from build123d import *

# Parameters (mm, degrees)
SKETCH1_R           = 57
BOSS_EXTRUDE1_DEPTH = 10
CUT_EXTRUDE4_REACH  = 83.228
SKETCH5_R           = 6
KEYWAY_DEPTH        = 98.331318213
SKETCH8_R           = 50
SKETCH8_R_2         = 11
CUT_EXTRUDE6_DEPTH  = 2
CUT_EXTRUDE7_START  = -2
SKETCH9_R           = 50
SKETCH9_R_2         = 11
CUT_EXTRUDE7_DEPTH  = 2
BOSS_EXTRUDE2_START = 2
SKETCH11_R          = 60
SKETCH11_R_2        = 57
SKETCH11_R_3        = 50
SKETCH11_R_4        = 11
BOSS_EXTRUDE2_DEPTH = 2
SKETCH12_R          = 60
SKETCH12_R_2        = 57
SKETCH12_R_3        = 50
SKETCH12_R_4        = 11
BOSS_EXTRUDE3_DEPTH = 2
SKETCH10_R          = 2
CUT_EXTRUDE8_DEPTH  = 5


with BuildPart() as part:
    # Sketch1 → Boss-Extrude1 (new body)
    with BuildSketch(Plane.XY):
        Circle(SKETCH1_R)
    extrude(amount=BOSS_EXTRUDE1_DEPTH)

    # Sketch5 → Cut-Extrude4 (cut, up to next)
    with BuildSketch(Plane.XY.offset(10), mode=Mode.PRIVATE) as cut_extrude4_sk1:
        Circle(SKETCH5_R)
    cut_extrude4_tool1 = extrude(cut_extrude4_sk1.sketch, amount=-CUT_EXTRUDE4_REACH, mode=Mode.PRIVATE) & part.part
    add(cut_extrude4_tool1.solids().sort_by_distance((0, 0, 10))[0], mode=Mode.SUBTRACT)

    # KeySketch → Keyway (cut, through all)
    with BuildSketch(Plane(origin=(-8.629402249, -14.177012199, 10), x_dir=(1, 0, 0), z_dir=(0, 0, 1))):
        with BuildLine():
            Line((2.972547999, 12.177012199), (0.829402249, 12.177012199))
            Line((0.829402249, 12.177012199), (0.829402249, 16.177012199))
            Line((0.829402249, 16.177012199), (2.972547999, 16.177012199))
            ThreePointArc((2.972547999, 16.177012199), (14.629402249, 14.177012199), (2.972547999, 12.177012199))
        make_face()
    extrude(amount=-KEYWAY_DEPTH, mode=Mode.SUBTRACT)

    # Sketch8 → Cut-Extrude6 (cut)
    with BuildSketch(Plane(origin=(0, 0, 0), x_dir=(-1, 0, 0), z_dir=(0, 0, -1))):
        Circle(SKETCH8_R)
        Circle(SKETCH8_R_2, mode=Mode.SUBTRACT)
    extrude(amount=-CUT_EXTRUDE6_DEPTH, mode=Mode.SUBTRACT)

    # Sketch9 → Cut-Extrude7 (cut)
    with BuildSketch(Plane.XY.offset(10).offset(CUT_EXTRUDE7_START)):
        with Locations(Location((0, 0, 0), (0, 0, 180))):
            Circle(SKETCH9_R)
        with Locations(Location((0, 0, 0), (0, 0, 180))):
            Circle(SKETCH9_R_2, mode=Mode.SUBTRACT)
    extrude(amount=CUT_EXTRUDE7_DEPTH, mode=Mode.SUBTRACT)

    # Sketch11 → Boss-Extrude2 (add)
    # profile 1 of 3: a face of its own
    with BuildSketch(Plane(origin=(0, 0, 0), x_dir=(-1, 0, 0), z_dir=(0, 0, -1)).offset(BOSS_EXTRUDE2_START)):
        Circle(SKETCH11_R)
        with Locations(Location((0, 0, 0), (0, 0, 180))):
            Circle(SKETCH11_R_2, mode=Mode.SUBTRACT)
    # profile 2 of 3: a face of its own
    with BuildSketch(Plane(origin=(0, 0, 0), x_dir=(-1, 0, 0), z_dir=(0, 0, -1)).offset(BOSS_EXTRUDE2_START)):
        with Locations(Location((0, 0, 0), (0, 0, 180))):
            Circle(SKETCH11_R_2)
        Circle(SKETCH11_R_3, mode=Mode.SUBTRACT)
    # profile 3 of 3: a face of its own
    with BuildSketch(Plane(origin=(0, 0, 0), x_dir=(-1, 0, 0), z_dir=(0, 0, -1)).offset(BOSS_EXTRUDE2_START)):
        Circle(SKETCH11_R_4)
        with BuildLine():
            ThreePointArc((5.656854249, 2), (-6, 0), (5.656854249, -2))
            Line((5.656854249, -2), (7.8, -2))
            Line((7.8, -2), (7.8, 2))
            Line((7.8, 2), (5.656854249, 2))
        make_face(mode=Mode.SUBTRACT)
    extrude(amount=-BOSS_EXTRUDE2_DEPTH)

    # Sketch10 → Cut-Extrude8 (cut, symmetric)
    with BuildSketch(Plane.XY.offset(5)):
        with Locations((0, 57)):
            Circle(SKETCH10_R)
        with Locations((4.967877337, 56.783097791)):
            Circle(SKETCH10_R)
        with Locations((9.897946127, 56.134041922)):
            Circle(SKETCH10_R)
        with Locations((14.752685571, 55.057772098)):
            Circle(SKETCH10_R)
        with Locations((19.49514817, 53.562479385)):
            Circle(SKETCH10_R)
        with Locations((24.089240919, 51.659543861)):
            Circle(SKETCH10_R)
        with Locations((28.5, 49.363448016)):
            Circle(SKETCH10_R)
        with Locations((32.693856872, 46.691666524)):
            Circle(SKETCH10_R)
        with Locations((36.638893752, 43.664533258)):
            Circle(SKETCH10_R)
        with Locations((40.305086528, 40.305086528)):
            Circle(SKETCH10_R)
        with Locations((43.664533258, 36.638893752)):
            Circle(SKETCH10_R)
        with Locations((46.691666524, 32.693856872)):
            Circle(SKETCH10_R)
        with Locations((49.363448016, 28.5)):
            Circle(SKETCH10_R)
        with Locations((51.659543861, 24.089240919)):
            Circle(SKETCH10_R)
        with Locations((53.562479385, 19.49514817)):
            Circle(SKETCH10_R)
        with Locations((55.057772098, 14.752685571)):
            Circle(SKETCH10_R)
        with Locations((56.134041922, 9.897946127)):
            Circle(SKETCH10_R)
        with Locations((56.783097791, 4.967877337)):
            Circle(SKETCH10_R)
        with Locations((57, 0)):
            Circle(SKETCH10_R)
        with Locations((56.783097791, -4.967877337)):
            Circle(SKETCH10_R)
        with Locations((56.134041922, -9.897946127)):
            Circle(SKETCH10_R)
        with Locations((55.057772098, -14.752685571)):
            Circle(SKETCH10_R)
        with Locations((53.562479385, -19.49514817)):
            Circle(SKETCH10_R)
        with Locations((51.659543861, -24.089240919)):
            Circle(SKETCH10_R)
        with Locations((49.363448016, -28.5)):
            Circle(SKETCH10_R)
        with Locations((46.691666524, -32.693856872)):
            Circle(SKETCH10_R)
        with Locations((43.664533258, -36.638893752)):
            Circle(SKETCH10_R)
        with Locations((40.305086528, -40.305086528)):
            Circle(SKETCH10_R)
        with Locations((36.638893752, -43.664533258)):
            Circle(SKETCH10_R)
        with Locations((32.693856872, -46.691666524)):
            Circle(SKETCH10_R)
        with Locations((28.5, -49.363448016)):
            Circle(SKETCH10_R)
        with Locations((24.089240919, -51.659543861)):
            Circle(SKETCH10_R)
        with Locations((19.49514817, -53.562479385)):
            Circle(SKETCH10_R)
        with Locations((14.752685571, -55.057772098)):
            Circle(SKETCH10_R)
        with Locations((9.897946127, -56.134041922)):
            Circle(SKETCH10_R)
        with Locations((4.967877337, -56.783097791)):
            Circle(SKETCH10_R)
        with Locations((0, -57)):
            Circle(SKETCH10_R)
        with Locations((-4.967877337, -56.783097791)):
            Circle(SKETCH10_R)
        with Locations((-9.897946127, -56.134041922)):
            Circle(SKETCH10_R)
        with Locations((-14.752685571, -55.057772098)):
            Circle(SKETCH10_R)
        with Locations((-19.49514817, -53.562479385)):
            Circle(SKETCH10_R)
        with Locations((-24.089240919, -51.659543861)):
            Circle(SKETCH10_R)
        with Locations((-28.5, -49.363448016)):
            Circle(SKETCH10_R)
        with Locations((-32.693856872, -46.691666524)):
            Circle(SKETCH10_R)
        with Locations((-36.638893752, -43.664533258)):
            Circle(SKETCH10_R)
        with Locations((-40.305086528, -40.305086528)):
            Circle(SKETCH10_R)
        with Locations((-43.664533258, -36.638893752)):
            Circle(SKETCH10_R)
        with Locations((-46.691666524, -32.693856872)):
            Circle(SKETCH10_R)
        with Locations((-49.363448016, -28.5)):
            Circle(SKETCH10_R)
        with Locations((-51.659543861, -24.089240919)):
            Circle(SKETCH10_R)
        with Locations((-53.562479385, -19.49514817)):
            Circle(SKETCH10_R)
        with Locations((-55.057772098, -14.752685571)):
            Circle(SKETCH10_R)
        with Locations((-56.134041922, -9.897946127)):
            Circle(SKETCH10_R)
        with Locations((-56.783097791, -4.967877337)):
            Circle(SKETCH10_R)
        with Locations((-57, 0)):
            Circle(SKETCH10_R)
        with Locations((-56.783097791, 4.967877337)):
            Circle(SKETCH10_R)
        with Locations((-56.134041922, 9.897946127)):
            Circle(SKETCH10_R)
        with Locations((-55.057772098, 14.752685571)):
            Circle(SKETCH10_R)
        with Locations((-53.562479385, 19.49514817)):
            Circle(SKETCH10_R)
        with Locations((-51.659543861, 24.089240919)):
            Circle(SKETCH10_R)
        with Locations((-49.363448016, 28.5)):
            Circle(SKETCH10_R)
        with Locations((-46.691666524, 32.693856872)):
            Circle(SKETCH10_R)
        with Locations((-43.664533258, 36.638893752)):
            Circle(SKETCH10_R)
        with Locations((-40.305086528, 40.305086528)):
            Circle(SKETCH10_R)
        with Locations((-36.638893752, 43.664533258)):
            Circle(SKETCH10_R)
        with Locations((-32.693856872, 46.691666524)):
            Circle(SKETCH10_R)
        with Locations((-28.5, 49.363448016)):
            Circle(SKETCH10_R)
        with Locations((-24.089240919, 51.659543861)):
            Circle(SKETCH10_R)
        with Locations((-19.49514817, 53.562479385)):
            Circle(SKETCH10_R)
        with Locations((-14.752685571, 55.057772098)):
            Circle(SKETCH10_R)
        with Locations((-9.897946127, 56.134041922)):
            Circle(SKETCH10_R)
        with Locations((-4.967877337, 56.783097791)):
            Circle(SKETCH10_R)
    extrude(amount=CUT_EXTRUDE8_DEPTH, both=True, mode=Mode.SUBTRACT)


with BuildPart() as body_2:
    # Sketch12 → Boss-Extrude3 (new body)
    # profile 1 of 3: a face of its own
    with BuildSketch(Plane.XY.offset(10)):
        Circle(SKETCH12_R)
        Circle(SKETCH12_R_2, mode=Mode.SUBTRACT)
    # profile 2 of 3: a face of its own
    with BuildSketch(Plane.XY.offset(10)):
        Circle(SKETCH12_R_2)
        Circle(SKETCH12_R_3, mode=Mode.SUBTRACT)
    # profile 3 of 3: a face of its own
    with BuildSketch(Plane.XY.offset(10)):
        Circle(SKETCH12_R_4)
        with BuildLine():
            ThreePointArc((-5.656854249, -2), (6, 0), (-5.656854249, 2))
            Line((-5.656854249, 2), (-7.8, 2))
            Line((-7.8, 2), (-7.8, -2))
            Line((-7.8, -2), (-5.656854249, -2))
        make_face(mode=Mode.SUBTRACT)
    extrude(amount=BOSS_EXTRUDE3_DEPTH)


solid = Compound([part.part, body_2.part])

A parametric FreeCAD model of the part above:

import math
import FreeCAD as App
import Part
import Sketcher

V = App.Vector

doc = App.newDocument("Part")
body = doc.addObject("PartDesign::Body", "Body")

sketch1 = body.newObject("Sketcher::SketchObject", "Sketch")
sketch1.AttachmentSupport = (doc.getObject("XY_Plane"), [""])
sketch1.MapMode = "FlatFace"
sketch1.addGeometry(Part.Circle(V(0, 0, 0), V(0, 0, 1), 57), False)
sketch1.addConstraint(Sketcher.Constraint("Coincident", 0, 3, -1, 1))
sketch1.addConstraint(Sketcher.Constraint("Diameter", 0, 114.0))
pad1 = body.newObject("PartDesign::Pad", "Pad")
pad1.Profile = sketch1
pad1.Length = 10

sketch2 = body.newObject("Sketcher::SketchObject", "Sketch001")
sketch2.AttachmentSupport = (doc.getObject("XY_Plane"), [""])
sketch2.MapMode = "FlatFace"
sketch2.AttachmentOffset = App.Placement(V(0, 0, 10), App.Rotation())
sketch2.addGeometry(Part.Circle(V(0, 0, 0), V(0, 0, 1), 6), False)
sketch2.addConstraint(Sketcher.Constraint("Coincident", 0, 3, -1, 1))
sketch2.addConstraint(Sketcher.Constraint("Diameter", 0, 12.0))
pocket1 = body.newObject("PartDesign::Pocket", "Pocket")
pocket1.Profile = sketch2
pocket1.Type = "UpToFirst"

sketch3 = body.newObject("Sketcher::SketchObject", "Sketch002")
sketch3.AttachmentSupport = (doc.getObject("XY_Plane"), [""])
sketch3.MapMode = "FlatFace"
sketch3.AttachmentOffset = App.Placement(V(0, 0, 10), App.Rotation())
sketch3.addGeometry(Part.LineSegment(V(-7.8, -2, 0), V(-5.656854, -2, 0)), False)
sketch3.addGeometry(Part.ArcOfCircle(Part.Circle(V(0, 0, 0), V(0, 0, 1), 6), math.radians(-160.528779), math.radians(160.528779)), False)
sketch3.addGeometry(Part.LineSegment(V(-5.656854, 2, 0), V(-7.8, 2, 0)), False)
sketch3.addGeometry(Part.LineSegment(V(-7.8, 2, 0), V(-7.8, -2, 0)), False)
sketch3.addConstraint(Sketcher.Constraint("Coincident", 0, 2, 1, 1))
sketch3.addConstraint(Sketcher.Constraint("Coincident", 1, 2, 2, 1))
sketch3.addConstraint(Sketcher.Constraint("Coincident", 2, 2, 3, 1))
sketch3.addConstraint(Sketcher.Constraint("Coincident", 3, 2, 0, 1))
sketch3.addConstraint(Sketcher.Constraint("Horizontal", 0))
sketch3.addConstraint(Sketcher.Constraint("Horizontal", 2))
sketch3.addConstraint(Sketcher.Constraint("Vertical", 3))
sketch3.addConstraint(Sketcher.Constraint("Coincident", 1, 3, -1, 1))
sketch3.addConstraint(Sketcher.Constraint("Vertical", 0, 2, 1, 2))
sketch3.addConstraint(Sketcher.Constraint("Radius", 1, 6.0))
sketch3.addConstraint(Sketcher.Constraint("DistanceY", 3, 2, 3, 1, 4.0))
sketch3.addConstraint(Sketcher.Constraint("DistanceX", 2, 2, -1, 1, 7.8))
pocket2 = body.newObject("PartDesign::Pocket", "Pocket001")
pocket2.Profile = sketch3
pocket2.Type = "ThroughAll"

sketch4 = body.newObject("Sketcher::SketchObject", "Sketch003")
sketch4.AttachmentSupport = (doc.getObject("XY_Plane"), [""])
sketch4.MapMode = "FlatFace"
sketch4.addGeometry(Part.Circle(V(0, 0, 0), V(0, 0, 1), 50), False)
sketch4.addGeometry(Part.Circle(V(0, 0, 0), V(0, 0, 1), 11), False)
sketch4.addConstraint(Sketcher.Constraint("Coincident", 0, 3, -1, 1))
sketch4.addConstraint(Sketcher.Constraint("Coincident", 1, 3, -1, 1))
sketch4.addConstraint(Sketcher.Constraint("Diameter", 0, 100.0))
sketch4.addConstraint(Sketcher.Constraint("Diameter", 1, 22.0))
pocket3 = body.newObject("PartDesign::Pocket", "Pocket002")
pocket3.Profile = sketch4
pocket3.Length = 2
pocket3.Reversed = True

sketch5 = body.newObject("Sketcher::SketchObject", "Sketch004")
sketch5.AttachmentSupport = (doc.getObject("XY_Plane"), [""])
sketch5.MapMode = "FlatFace"
sketch5.AttachmentOffset = App.Placement(V(0, 0, 8), App.Rotation())
sketch5.addGeometry(Part.Circle(V(0, 0, 0), V(0, 0, 1), 50), False)
sketch5.addGeometry(Part.Circle(V(0, 0, 0), V(0, 0, 1), 11), False)
sketch5.addConstraint(Sketcher.Constraint("Coincident", 0, 3, -1, 1))
sketch5.addConstraint(Sketcher.Constraint("Coincident", 1, 3, -1, 1))
sketch5.addConstraint(Sketcher.Constraint("Diameter", 0, 100.0))
sketch5.addConstraint(Sketcher.Constraint("Diameter", 1, 22.0))
pocket4 = body.newObject("PartDesign::Pocket", "Pocket003")
pocket4.Profile = sketch5
pocket4.Length = 2
pocket4.Reversed = True

sketch6 = body.newObject("Sketcher::SketchObject", "Sketch005")
sketch6.AttachmentSupport = (doc.getObject("XY_Plane"), [""])
sketch6.MapMode = "FlatFace"
sketch6.AttachmentOffset = App.Placement(V(0, 0, -2), App.Rotation())
sketch6.addGeometry(Part.Circle(V(0, 0, 0), V(0, 0, 1), 60), False)
sketch6.addGeometry(Part.Circle(V(0, 0, 0), V(0, 0, 1), 50), False)
sketch6.addGeometry(Part.Circle(V(0, 0, 0), V(0, 0, 1), 11), False)
sketch6.addGeometry(Part.ArcOfCircle(Part.Circle(V(0, 0, 0), V(0, 0, 1), 6), math.radians(-160.528779), math.radians(160.528779)), False)
sketch6.addGeometry(Part.LineSegment(V(-5.656854, 2, 0), V(-7.8, 2, 0)), False)
sketch6.addGeometry(Part.LineSegment(V(-7.8, 2, 0), V(-7.8, -2, 0)), False)
sketch6.addGeometry(Part.LineSegment(V(-7.8, -2, 0), V(-5.656854, -2, 0)), False)
sketch6.addConstraint(Sketcher.Constraint("Coincident", 3, 2, 4, 1))
sketch6.addConstraint(Sketcher.Constraint("Coincident", 4, 2, 5, 1))
sketch6.addConstraint(Sketcher.Constraint("Coincident", 5, 2, 6, 1))
sketch6.addConstraint(Sketcher.Constraint("Coincident", 6, 2, 3, 1))
sketch6.addConstraint(Sketcher.Constraint("Horizontal", 4))
sketch6.addConstraint(Sketcher.Constraint("Vertical", 5))
sketch6.addConstraint(Sketcher.Constraint("Horizontal", 6))
sketch6.addConstraint(Sketcher.Constraint("Coincident", 0, 3, -1, 1))
sketch6.addConstraint(Sketcher.Constraint("Coincident", 1, 3, -1, 1))
sketch6.addConstraint(Sketcher.Constraint("Coincident", 2, 3, -1, 1))
sketch6.addConstraint(Sketcher.Constraint("Coincident", 3, 3, -1, 1))
sketch6.addConstraint(Sketcher.Constraint("Vertical", 3, 2, 6, 2))
sketch6.addConstraint(Sketcher.Constraint("Diameter", 0, 120.0))
sketch6.addConstraint(Sketcher.Constraint("Diameter", 1, 100.0))
sketch6.addConstraint(Sketcher.Constraint("Diameter", 2, 22.0))
sketch6.addConstraint(Sketcher.Constraint("Radius", 3, 6.0))
sketch6.addConstraint(Sketcher.Constraint("DistanceY", 5, 2, 5, 1, 4.0))
sketch6.addConstraint(Sketcher.Constraint("DistanceX", 4, 2, -1, 1, 7.8))
pad2 = body.newObject("PartDesign::Pad", "Pad001")
pad2.Profile = sketch6
pad2.Length = 2

sketch7 = body.newObject("Sketcher::SketchObject", "Sketch006")
sketch7.AttachmentSupport = (doc.getObject("XY_Plane"), [""])
sketch7.MapMode = "FlatFace"
sketch7.AttachmentOffset = App.Placement(V(0, 0, 5), App.Rotation())
sketch7.addGeometry(Part.Circle(V(0, 57, 0), V(0, 0, 1), 2), False)
sketch7.addGeometry(Part.Circle(V(4.967877, 56.783098, 0), V(0, 0, 1), 2), False)
sketch7.addGeometry(Part.Circle(V(9.897946, 56.134042, 0), V(0, 0, 1), 2), False)
sketch7.addGeometry(Part.Circle(V(14.752686, 55.057772, 0), V(0, 0, 1), 2), False)
sketch7.addGeometry(Part.Circle(V(19.495148, 53.562479, 0), V(0, 0, 1), 2), False)
sketch7.addGeometry(Part.Circle(V(24.089241, 51.659544, 0), V(0, 0, 1), 2), False)
sketch7.addGeometry(Part.Circle(V(28.5, 49.363448, 0), V(0, 0, 1), 2), False)
sketch7.addGeometry(Part.Circle(V(32.693857, 46.691667, 0), V(0, 0, 1), 2), False)
sketch7.addGeometry(Part.Circle(V(36.638894, 43.664533, 0), V(0, 0, 1), 2), False)
sketch7.addGeometry(Part.Circle(V(40.305087, 40.305087, 0), V(0, 0, 1), 2), False)
sketch7.addGeometry(Part.Circle(V(43.664533, 36.638894, 0), V(0, 0, 1), 2), False)
sketch7.addGeometry(Part.Circle(V(46.691667, 32.693857, 0), V(0, 0, 1), 2), False)
sketch7.addGeometry(Part.Circle(V(49.363448, 28.5, 0), V(0, 0, 1), 2), False)
sketch7.addGeometry(Part.Circle(V(51.659544, 24.089241, 0), V(0, 0, 1), 2), False)
sketch7.addGeometry(Part.Circle(V(53.562479, 19.495148, 0), V(0, 0, 1), 2), False)
sketch7.addGeometry(Part.Circle(V(55.057772, 14.752686, 0), V(0, 0, 1), 2), False)
sketch7.addGeometry(Part.Circle(V(56.134042, 9.897946, 0), V(0, 0, 1), 2), False)
sketch7.addGeometry(Part.Circle(V(56.783098, 4.967877, 0), V(0, 0, 1), 2), False)
sketch7.addGeometry(Part.Circle(V(57, 0, 0), V(0, 0, 1), 2), False)
sketch7.addGeometry(Part.Circle(V(56.783098, -4.967877, 0), V(0, 0, 1), 2), False)
sketch7.addGeometry(Part.Circle(V(56.134042, -9.897946, 0), V(0, 0, 1), 2), False)
sketch7.addGeometry(Part.Circle(V(55.057772, -14.752686, 0), V(0, 0, 1), 2), False)
sketch7.addGeometry(Part.Circle(V(53.562479, -19.495148, 0), V(0, 0, 1), 2), False)
sketch7.addGeometry(Part.Circle(V(51.659544, -24.089241, 0), V(0, 0, 1), 2), False)
sketch7.addGeometry(Part.Circle(V(49.363448, -28.5, 0), V(0, 0, 1), 2), False)
sketch7.addGeometry(Part.Circle(V(46.691667, -32.693857, 0), V(0, 0, 1), 2), False)
sketch7.addGeometry(Part.Circle(V(43.664533, -36.638894, 0), V(0, 0, 1), 2), False)
sketch7.addGeometry(Part.Circle(V(40.305087, -40.305087, 0), V(0, 0, 1), 2), False)
sketch7.addGeometry(Part.Circle(V(36.638894, -43.664533, 0), V(0, 0, 1), 2), False)
sketch7.addGeometry(Part.Circle(V(32.693857, -46.691667, 0), V(0, 0, 1), 2), False)
sketch7.addGeometry(Part.Circle(V(28.5, -49.363448, 0), V(0, 0, 1), 2), False)
sketch7.addGeometry(Part.Circle(V(24.089241, -51.659544, 0), V(0, 0, 1), 2), False)
sketch7.addGeometry(Part.Circle(V(19.495148, -53.562479, 0), V(0, 0, 1), 2), False)
sketch7.addGeometry(Part.Circle(V(14.752686, -55.057772, 0), V(0, 0, 1), 2), False)
sketch7.addGeometry(Part.Circle(V(9.897946, -56.134042, 0), V(0, 0, 1), 2), False)
sketch7.addGeometry(Part.Circle(V(4.967877, -56.783098, 0), V(0, 0, 1), 2), False)
sketch7.addGeometry(Part.Circle(V(0, -57, 0), V(0, 0, 1), 2), False)
sketch7.addGeometry(Part.Circle(V(-4.967877, -56.783098, 0), V(0, 0, 1), 2), False)
sketch7.addGeometry(Part.Circle(V(-9.897946, -56.134042, 0), V(0, 0, 1), 2), False)
sketch7.addGeometry(Part.Circle(V(-14.752686, -55.057772, 0), V(0, 0, 1), 2), False)
sketch7.addGeometry(Part.Circle(V(-19.495148, -53.562479, 0), V(0, 0, 1), 2), False)
sketch7.addGeometry(Part.Circle(V(-24.089241, -51.659544, 0), V(0, 0, 1), 2), False)
sketch7.addGeometry(Part.Circle(V(-28.5, -49.363448, 0), V(0, 0, 1), 2), False)
sketch7.addGeometry(Part.Circle(V(-32.693857, -46.691667, 0), V(0, 0, 1), 2), False)
sketch7.addGeometry(Part.Circle(V(-36.638894, -43.664533, 0), V(0, 0, 1), 2), False)
sketch7.addGeometry(Part.Circle(V(-40.305087, -40.305087, 0), V(0, 0, 1), 2), False)
sketch7.addGeometry(Part.Circle(V(-43.664533, -36.638894, 0), V(0, 0, 1), 2), False)
sketch7.addGeometry(Part.Circle(V(-46.691667, -32.693857, 0), V(0, 0, 1), 2), False)
sketch7.addGeometry(Part.Circle(V(-49.363448, -28.5, 0), V(0, 0, 1), 2), False)
sketch7.addGeometry(Part.Circle(V(-51.659544, -24.089241, 0), V(0, 0, 1), 2), False)
sketch7.addGeometry(Part.Circle(V(-53.562479, -19.495148, 0), V(0, 0, 1), 2), False)
sketch7.addGeometry(Part.Circle(V(-55.057772, -14.752686, 0), V(0, 0, 1), 2), False)
sketch7.addGeometry(Part.Circle(V(-56.134042, -9.897946, 0), V(0, 0, 1), 2), False)
sketch7.addGeometry(Part.Circle(V(-56.783098, -4.967877, 0), V(0, 0, 1), 2), False)
sketch7.addGeometry(Part.Circle(V(-57, 0, 0), V(0, 0, 1), 2), False)
sketch7.addGeometry(Part.Circle(V(-56.783098, 4.967877, 0), V(0, 0, 1), 2), False)
sketch7.addGeometry(Part.Circle(V(-56.134042, 9.897946, 0), V(0, 0, 1), 2), False)
sketch7.addGeometry(Part.Circle(V(-55.057772, 14.752686, 0), V(0, 0, 1), 2), False)
sketch7.addGeometry(Part.Circle(V(-53.562479, 19.495148, 0), V(0, 0, 1), 2), False)
sketch7.addGeometry(Part.Circle(V(-51.659544, 24.089241, 0), V(0, 0, 1), 2), False)
sketch7.addGeometry(Part.Circle(V(-49.363448, 28.5, 0), V(0, 0, 1), 2), False)
sketch7.addGeometry(Part.Circle(V(-46.691667, 32.693857, 0), V(0, 0, 1), 2), False)
sketch7.addGeometry(Part.Circle(V(-43.664533, 36.638894, 0), V(0, 0, 1), 2), False)
sketch7.addGeometry(Part.Circle(V(-40.305087, 40.305087, 0), V(0, 0, 1), 2), False)
sketch7.addGeometry(Part.Circle(V(-36.638894, 43.664533, 0), V(0, 0, 1), 2), False)
sketch7.addGeometry(Part.Circle(V(-32.693857, 46.691667, 0), V(0, 0, 1), 2), False)
sketch7.addGeometry(Part.Circle(V(-28.5, 49.363448, 0), V(0, 0, 1), 2), False)
sketch7.addGeometry(Part.Circle(V(-24.089241, 51.659544, 0), V(0, 0, 1), 2), False)
sketch7.addGeometry(Part.Circle(V(-19.495148, 53.562479, 0), V(0, 0, 1), 2), False)
sketch7.addGeometry(Part.Circle(V(-14.752686, 55.057772, 0), V(0, 0, 1), 2), False)
sketch7.addGeometry(Part.Circle(V(-9.897946, 56.134042, 0), V(0, 0, 1), 2), False)
sketch7.addGeometry(Part.Circle(V(-4.967877, 56.783098, 0), V(0, 0, 1), 2), False)
sketch7.addConstraint(Sketcher.Constraint("Equal", 0, 1))
sketch7.addConstraint(Sketcher.Constraint("Equal", 1, 2))
sketch7.addConstraint(Sketcher.Constraint("Equal", 2, 3))
sketch7.addConstraint(Sketcher.Constraint("Equal", 3, 4))
sketch7.addConstraint(Sketcher.Constraint("Equal", 4, 5))
sketch7.addConstraint(Sketcher.Constraint("Equal", 5, 6))
sketch7.addConstraint(Sketcher.Constraint("Equal", 6, 7))
sketch7.addConstraint(Sketcher.Constraint("Equal", 7, 8))
sketch7.addConstraint(Sketcher.Constraint("Equal", 8, 9))
sketch7.addConstraint(Sketcher.Constraint("Equal", 9, 10))
sketch7.addConstraint(Sketcher.Constraint("Equal", 10, 11))
sketch7.addConstraint(Sketcher.Constraint("Equal", 11, 12))
sketch7.addConstraint(Sketcher.Constraint("Equal", 12, 13))
sketch7.addConstraint(Sketcher.Constraint("Equal", 13, 14))
sketch7.addConstraint(Sketcher.Constraint("Equal", 14, 15))
sketch7.addConstraint(Sketcher.Constraint("Equal", 15, 16))
sketch7.addConstraint(Sketcher.Constraint("Equal", 16, 17))
sketch7.addConstraint(Sketcher.Constraint("Equal", 17, 18))
sketch7.addConstraint(Sketcher.Constraint("Equal", 18, 19))
sketch7.addConstraint(Sketcher.Constraint("Equal", 19, 20))
sketch7.addConstraint(Sketcher.Constraint("Equal", 20, 21))
sketch7.addConstraint(Sketcher.Constraint("Equal", 21, 22))
sketch7.addConstraint(Sketcher.Constraint("Equal", 22, 23))
sketch7.addConstraint(Sketcher.Constraint("Equal", 23, 24))
sketch7.addConstraint(Sketcher.Constraint("Equal", 24, 25))
sketch7.addConstraint(Sketcher.Constraint("Equal", 25, 26))
sketch7.addConstraint(Sketcher.Constraint("Equal", 26, 27))
sketch7.addConstraint(Sketcher.Constraint("Equal", 27, 28))
sketch7.addConstraint(Sketcher.Constraint("Equal", 28, 29))
sketch7.addConstraint(Sketcher.Constraint("Equal", 29, 30))
sketch7.addConstraint(Sketcher.Constraint("Equal", 30, 31))
sketch7.addConstraint(Sketcher.Constraint("Equal", 31, 32))
sketch7.addConstraint(Sketcher.Constraint("Equal", 32, 33))
sketch7.addConstraint(Sketcher.Constraint("Equal", 33, 34))
sketch7.addConstraint(Sketcher.Constraint("Equal", 34, 35))
sketch7.addConstraint(Sketcher.Constraint("Equal", 35, 36))
sketch7.addConstraint(Sketcher.Constraint("Equal", 36, 37))
sketch7.addConstraint(Sketcher.Constraint("Equal", 37, 38))
sketch7.addConstraint(Sketcher.Constraint("Equal", 38, 39))
sketch7.addConstraint(Sketcher.Constraint("Equal", 39, 40))
sketch7.addConstraint(Sketcher.Constraint("Equal", 40, 41))
sketch7.addConstraint(Sketcher.Constraint("Equal", 41, 42))
sketch7.addConstraint(Sketcher.Constraint("Equal", 42, 43))
sketch7.addConstraint(Sketcher.Constraint("Equal", 43, 44))
sketch7.addConstraint(Sketcher.Constraint("Equal", 44, 45))
sketch7.addConstraint(Sketcher.Constraint("Equal", 45, 46))
sketch7.addConstraint(Sketcher.Constraint("Equal", 46, 47))
sketch7.addConstraint(Sketcher.Constraint("Equal", 47, 48))
sketch7.addConstraint(Sketcher.Constraint("Equal", 48, 49))
sketch7.addConstraint(Sketcher.Constraint("Equal", 49, 50))
sketch7.addConstraint(Sketcher.Constraint("Equal", 50, 51))
sketch7.addConstraint(Sketcher.Constraint("Equal", 51, 52))
sketch7.addConstraint(Sketcher.Constraint("Equal", 52, 53))
sketch7.addConstraint(Sketcher.Constraint("Equal", 53, 54))
sketch7.addConstraint(Sketcher.Constraint("Equal", 54, 55))
sketch7.addConstraint(Sketcher.Constraint("Equal", 55, 56))
sketch7.addConstraint(Sketcher.Constraint("Equal", 56, 57))
sketch7.addConstraint(Sketcher.Constraint("Equal", 57, 58))
sketch7.addConstraint(Sketcher.Constraint("Equal", 58, 59))
sketch7.addConstraint(Sketcher.Constraint("Equal", 59, 60))
sketch7.addConstraint(Sketcher.Constraint("Equal", 60, 61))
sketch7.addConstraint(Sketcher.Constraint("Equal", 61, 62))
sketch7.addConstraint(Sketcher.Constraint("Equal", 62, 63))
sketch7.addConstraint(Sketcher.Constraint("Equal", 63, 64))
sketch7.addConstraint(Sketcher.Constraint("Equal", 64, 65))
sketch7.addConstraint(Sketcher.Constraint("Equal", 65, 66))
sketch7.addConstraint(Sketcher.Constraint("Equal", 66, 67))
sketch7.addConstraint(Sketcher.Constraint("Equal", 67, 68))
sketch7.addConstraint(Sketcher.Constraint("Equal", 68, 69))
sketch7.addConstraint(Sketcher.Constraint("Equal", 69, 70))
sketch7.addConstraint(Sketcher.Constraint("Equal", 70, 71))
sketch7.addConstraint(Sketcher.Constraint("Symmetric", 0, 3, 36, 3, -1, 1))
sketch7.addConstraint(Sketcher.Constraint("Symmetric", 1, 3, 37, 3, -1, 1))
sketch7.addConstraint(Sketcher.Constraint("Symmetric", 2, 3, 38, 3, -1, 1))
sketch7.addConstraint(Sketcher.Constraint("Symmetric", 3, 3, 39, 3, -1, 1))
sketch7.addConstraint(Sketcher.Constraint("Symmetric", 4, 3, 40, 3, -1, 1))
sketch7.addConstraint(Sketcher.Constraint("Symmetric", 5, 3, 41, 3, -1, 1))
sketch7.addConstraint(Sketcher.Constraint("Symmetric", 6, 3, 42, 3, -1, 1))
sketch7.addConstraint(Sketcher.Constraint("Symmetric", 7, 3, 43, 3, -1, 1))
sketch7.addConstraint(Sketcher.Constraint("Symmetric", 8, 3, 44, 3, -1, 1))
sketch7.addConstraint(Sketcher.Constraint("Symmetric", 9, 3, 45, 3, -1, 1))
sketch7.addConstraint(Sketcher.Constraint("Symmetric", 10, 3, 46, 3, -1, 1))
sketch7.addConstraint(Sketcher.Constraint("Symmetric", 11, 3, 47, 3, -1, 1))
sketch7.addConstraint(Sketcher.Constraint("Symmetric", 12, 3, 48, 3, -1, 1))
sketch7.addConstraint(Sketcher.Constraint("Symmetric", 13, 3, 49, 3, -1, 1))
sketch7.addConstraint(Sketcher.Constraint("Symmetric", 14, 3, 50, 3, -1, 1))
sketch7.addConstraint(Sketcher.Constraint("Symmetric", 15, 3, 51, 3, -1, 1))
sketch7.addConstraint(Sketcher.Constraint("Symmetric", 16, 3, 52, 3, -1, 1))
sketch7.addConstraint(Sketcher.Constraint("Symmetric", 17, 3, 53, 3, -1, 1))
sketch7.addConstraint(Sketcher.Constraint("Symmetric", 18, 3, 54, 3, -1, 1))
sketch7.addConstraint(Sketcher.Constraint("Symmetric", 19, 3, 55, 3, -1, 1))
sketch7.addConstraint(Sketcher.Constraint("Symmetric", 20, 3, 56, 3, -1, 1))
sketch7.addConstraint(Sketcher.Constraint("Symmetric", 21, 3, 57, 3, -1, 1))
sketch7.addConstraint(Sketcher.Constraint("Symmetric", 22, 3, 58, 3, -1, 1))
sketch7.addConstraint(Sketcher.Constraint("Symmetric", 23, 3, 59, 3, -1, 1))
sketch7.addConstraint(Sketcher.Constraint("Symmetric", 24, 3, 60, 3, -1, 1))
sketch7.addConstraint(Sketcher.Constraint("Symmetric", 25, 3, 61, 3, -1, 1))
sketch7.addConstraint(Sketcher.Constraint("Symmetric", 26, 3, 62, 3, -1, 1))
sketch7.addConstraint(Sketcher.Constraint("Symmetric", 27, 3, 63, 3, -1, 1))
sketch7.addConstraint(Sketcher.Constraint("Symmetric", 28, 3, 64, 3, -1, 1))
sketch7.addConstraint(Sketcher.Constraint("Symmetric", 29, 3, 65, 3, -1, 1))
sketch7.addConstraint(Sketcher.Constraint("Symmetric", 30, 3, 66, 3, -1, 1))
sketch7.addConstraint(Sketcher.Constraint("Symmetric", 31, 3, 67, 3, -1, 1))
sketch7.addConstraint(Sketcher.Constraint("Symmetric", 32, 3, 68, 3, -1, 1))
sketch7.addConstraint(Sketcher.Constraint("Symmetric", 33, 3, 69, 3, -1, 1))
sketch7.addConstraint(Sketcher.Constraint("Symmetric", 34, 3, 70, 3, -1, 1))
sketch7.addConstraint(Sketcher.Constraint("Symmetric", 35, 3, 71, 3, -1, 1))
sketch7.addConstraint(Sketcher.Constraint("Symmetric", 35, 3, 37, 3, -2))
sketch7.addConstraint(Sketcher.Constraint("Symmetric", 34, 3, 38, 3, -2))
sketch7.addConstraint(Sketcher.Constraint("Symmetric", 33, 3, 39, 3, -2))
sketch7.addConstraint(Sketcher.Constraint("Symmetric", 32, 3, 40, 3, -2))
sketch7.addConstraint(Sketcher.Constraint("Symmetric", 31, 3, 41, 3, -2))
sketch7.addConstraint(Sketcher.Constraint("Symmetric", 30, 3, 42, 3, -2))
sketch7.addConstraint(Sketcher.Constraint("Symmetric", 29, 3, 43, 3, -2))
sketch7.addConstraint(Sketcher.Constraint("Symmetric", 28, 3, 44, 3, -2))
sketch7.addConstraint(Sketcher.Constraint("Symmetric", 27, 3, 45, 3, -2))
sketch7.addConstraint(Sketcher.Constraint("Symmetric", 26, 3, 46, 3, -2))
sketch7.addConstraint(Sketcher.Constraint("Symmetric", 25, 3, 47, 3, -2))
sketch7.addConstraint(Sketcher.Constraint("Symmetric", 24, 3, 48, 3, -2))
sketch7.addConstraint(Sketcher.Constraint("Symmetric", 23, 3, 49, 3, -2))
sketch7.addConstraint(Sketcher.Constraint("Symmetric", 22, 3, 50, 3, -2))
sketch7.addConstraint(Sketcher.Constraint("Symmetric", 21, 3, 51, 3, -2))
sketch7.addConstraint(Sketcher.Constraint("Symmetric", 20, 3, 52, 3, -2))
sketch7.addConstraint(Sketcher.Constraint("Symmetric", 19, 3, 53, 3, -2))
sketch7.addConstraint(Sketcher.Constraint("PointOnObject", 0, 3, -2))
sketch7.addConstraint(Sketcher.Constraint("PointOnObject", 18, 3, -1))
sketch7.addConstraint(Sketcher.Constraint("Diameter", 0, 4.0))
sketch7.addConstraint(Sketcher.Constraint("DistanceY", -1, 1, 0, 3, 57.0))
sketch7.addConstraint(Sketcher.Constraint("DistanceX", -1, 1, 18, 3, 57.0))
sketch7.addConstraint(Sketcher.Constraint("DistanceX", -1, 1, 6, 3, 28.5))
sketch7.addConstraint(Sketcher.Constraint("DistanceY", -1, 1, 12, 3, 28.5))
sketch7.addConstraint(Sketcher.Constraint("DistanceY", -1, 1, 2, 3, 56.134042))
sketch7.addConstraint(Sketcher.Constraint("DistanceX", -1, 1, 4, 3, 19.495148))
sketch7.addConstraint(Sketcher.Constraint("DistanceY", -1, 1, 4, 3, 53.562479))
sketch7.addConstraint(Sketcher.Constraint("DistanceX", -1, 1, 5, 3, 24.089241))
sketch7.addConstraint(Sketcher.Constraint("DistanceY", -1, 1, 6, 3, 49.363448))
sketch7.addConstraint(Sketcher.Constraint("DistanceX", -1, 1, 12, 3, 49.363448))
sketch7.addConstraint(Sketcher.Constraint("DistanceY", -1, 1, 13, 3, 24.089241))
sketch7.addConstraint(Sketcher.Constraint("DistanceX", -1, 1, 14, 3, 53.562479))
sketch7.addConstraint(Sketcher.Constraint("DistanceY", -1, 1, 14, 3, 19.495148))
sketch7.addConstraint(Sketcher.Constraint("DistanceX", -1, 1, 16, 3, 56.134042))
sketch7.addConstraint(Sketcher.Constraint("DistanceX", -1, 1, 1, 3, 4.967877))
sketch7.addConstraint(Sketcher.Constraint("DistanceY", -1, 1, 1, 3, 56.783098))
sketch7.addConstraint(Sketcher.Constraint("DistanceX", -1, 1, 2, 3, 9.897946))
sketch7.addConstraint(Sketcher.Constraint("DistanceX", -1, 1, 3, 3, 14.752686))
sketch7.addConstraint(Sketcher.Constraint("DistanceY", -1, 1, 3, 3, 55.057772))
sketch7.addConstraint(Sketcher.Constraint("DistanceY", -1, 1, 5, 3, 51.659544))
sketch7.addConstraint(Sketcher.Constraint("DistanceX", -1, 1, 7, 3, 32.693857))
sketch7.addConstraint(Sketcher.Constraint("DistanceY", -1, 1, 7, 3, 46.691667))
sketch7.addConstraint(Sketcher.Constraint("DistanceX", -1, 1, 8, 3, 36.638894))
sketch7.addConstraint(Sketcher.Constraint("DistanceY", -1, 1, 8, 3, 43.664533))
sketch7.addConstraint(Sketcher.Constraint("DistanceX", -1, 1, 9, 3, 40.305087))
sketch7.addConstraint(Sketcher.Constraint("DistanceY", -1, 1, 9, 3, 40.305087))
sketch7.addConstraint(Sketcher.Constraint("DistanceX", -1, 1, 10, 3, 43.664533))
sketch7.addConstraint(Sketcher.Constraint("DistanceY", -1, 1, 10, 3, 36.638894))
sketch7.addConstraint(Sketcher.Constraint("DistanceX", -1, 1, 11, 3, 46.691667))
sketch7.addConstraint(Sketcher.Constraint("DistanceY", -1, 1, 11, 3, 32.693857))
sketch7.addConstraint(Sketcher.Constraint("DistanceX", -1, 1, 13, 3, 51.659544))
sketch7.addConstraint(Sketcher.Constraint("DistanceX", -1, 1, 15, 3, 55.057772))
sketch7.addConstraint(Sketcher.Constraint("DistanceY", -1, 1, 15, 3, 14.752686))
sketch7.addConstraint(Sketcher.Constraint("DistanceY", -1, 1, 16, 3, 9.897946))
sketch7.addConstraint(Sketcher.Constraint("DistanceX", -1, 1, 17, 3, 56.783098))
sketch7.addConstraint(Sketcher.Constraint("DistanceY", -1, 1, 17, 3, 4.967877))
pocket5 = body.newObject("PartDesign::Pocket", "Pocket004")
pocket5.Profile = sketch7
pocket5.Length = 10
pocket5.Midplane = True
body2 = doc.addObject("PartDesign::Body", "Body001")
body2.AllowCompound = True

sketch8 = body2.newObject("Sketcher::SketchObject", "Sketch007")
sketch8.AttachmentSupport = (doc.getObject("XY_Plane001"), [""])
sketch8.MapMode = "FlatFace"
sketch8.AttachmentOffset = App.Placement(V(0, 0, 10), App.Rotation())
sketch8.addGeometry(Part.Circle(V(0, 0, 0), V(0, 0, 1), 60), False)
sketch8.addGeometry(Part.Circle(V(0, 0, 0), V(0, 0, 1), 50), False)
sketch8.addGeometry(Part.Circle(V(0, 0, 0), V(0, 0, 1), 11), False)
sketch8.addGeometry(Part.ArcOfCircle(Part.Circle(V(0, 0, 0), V(0, 0, 1), 6), math.radians(-160.528779), math.radians(160.528779)), False)
sketch8.addGeometry(Part.LineSegment(V(-5.656854, -2, 0), V(-7.8, -2, 0)), False)
sketch8.addGeometry(Part.LineSegment(V(-7.8, -2, 0), V(-7.8, 2, 0)), False)
sketch8.addGeometry(Part.LineSegment(V(-7.8, 2, 0), V(-5.656854, 2, 0)), False)
sketch8.addConstraint(Sketcher.Constraint("Coincident", 3, 1, 4, 1))
sketch8.addConstraint(Sketcher.Constraint("Coincident", 4, 2, 5, 1))
sketch8.addConstraint(Sketcher.Constraint("Coincident", 5, 2, 6, 1))
sketch8.addConstraint(Sketcher.Constraint("Coincident", 6, 2, 3, 2))
sketch8.addConstraint(Sketcher.Constraint("Horizontal", 4))
sketch8.addConstraint(Sketcher.Constraint("Vertical", 5))
sketch8.addConstraint(Sketcher.Constraint("Horizontal", 6))
sketch8.addConstraint(Sketcher.Constraint("Coincident", 0, 3, -1, 1))
sketch8.addConstraint(Sketcher.Constraint("Coincident", 1, 3, -1, 1))
sketch8.addConstraint(Sketcher.Constraint("Coincident", 2, 3, -1, 1))
sketch8.addConstraint(Sketcher.Constraint("Coincident", 3, 3, -1, 1))
sketch8.addConstraint(Sketcher.Constraint("Vertical", 3, 1, 6, 2))
sketch8.addConstraint(Sketcher.Constraint("Diameter", 0, 120.0))
sketch8.addConstraint(Sketcher.Constraint("Diameter", 1, 100.0))
sketch8.addConstraint(Sketcher.Constraint("Diameter", 2, 22.0))
sketch8.addConstraint(Sketcher.Constraint("Radius", 3, 6.0))
sketch8.addConstraint(Sketcher.Constraint("DistanceY", 5, 1, 5, 2, 4.0))
sketch8.addConstraint(Sketcher.Constraint("DistanceX", 4, 2, -1, 1, 7.8))
pad3 = body2.newObject("PartDesign::Pad", "Pad002")
pad3.Profile = sketch8
pad3.Length = 2

doc.recompute()
